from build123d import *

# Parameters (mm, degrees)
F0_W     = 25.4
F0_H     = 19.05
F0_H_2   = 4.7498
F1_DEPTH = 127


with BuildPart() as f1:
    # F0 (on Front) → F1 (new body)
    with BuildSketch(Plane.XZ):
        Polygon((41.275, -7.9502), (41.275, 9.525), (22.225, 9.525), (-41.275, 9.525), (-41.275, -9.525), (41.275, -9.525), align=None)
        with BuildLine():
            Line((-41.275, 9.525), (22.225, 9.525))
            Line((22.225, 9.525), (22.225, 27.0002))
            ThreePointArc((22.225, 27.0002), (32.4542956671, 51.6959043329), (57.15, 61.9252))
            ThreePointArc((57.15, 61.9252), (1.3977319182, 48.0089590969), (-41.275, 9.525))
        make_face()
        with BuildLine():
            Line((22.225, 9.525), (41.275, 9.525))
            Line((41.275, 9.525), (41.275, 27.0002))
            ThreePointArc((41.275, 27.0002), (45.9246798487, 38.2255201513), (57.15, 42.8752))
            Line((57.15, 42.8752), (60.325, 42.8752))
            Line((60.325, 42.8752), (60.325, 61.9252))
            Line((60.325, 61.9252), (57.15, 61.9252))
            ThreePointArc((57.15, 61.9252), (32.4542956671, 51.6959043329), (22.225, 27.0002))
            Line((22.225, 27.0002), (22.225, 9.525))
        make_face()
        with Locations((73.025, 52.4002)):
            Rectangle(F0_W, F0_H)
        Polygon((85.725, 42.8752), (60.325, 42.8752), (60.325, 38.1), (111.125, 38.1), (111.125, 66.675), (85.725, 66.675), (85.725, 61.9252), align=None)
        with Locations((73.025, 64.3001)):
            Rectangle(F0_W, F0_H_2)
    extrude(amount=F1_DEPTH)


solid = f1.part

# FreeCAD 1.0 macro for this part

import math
import FreeCAD as App
import Part
import Sketcher

V = App.Vector
Q = App.Units.Quantity

doc = App.newDocument("Part")
body = doc.addObject("PartDesign::Body", "Body")

sketch1 = body.newObject("Sketcher::SketchObject", "Sketch")
sketch1.AttachmentSupport = (doc.getObject("XZ_Plane"), [""])
sketch1.MapMode = "FlatFace"
sketch1.addGeometry(Part.ArcOfCircle(Part.Circle(V(57.1, -56.7, 0), V(0, 0, 1), 118.6), math.radians(90), math.radians(146)), False)
sketch1.addGeometry(Part.LineSegment(V(-41.3, 9.5, 0), V(-41.3, -9.5, 0)), False)
sketch1.addGeometry(Part.LineSegment(V(-41.3, -9.5, 0), V(41.3, -9.5, 0)), False)
sketch1.addGeometry(Part.LineSegment(V(41.3, -9.5, 0), V(41.3, 27, 0)), False)
sketch1.addGeometry(Part.ArcOfCircle(Part.Circle(V(57.1, 27, 0), V(0, 0, 1), 15.9), math.radians(90), math.radians(180)), False)
sketch1.addGeometry(Part.LineSegment(V(57.1, 42.9, 0), V(60.3, 42.9, 0)), False)
sketch1.addGeometry(Part.LineSegment(V(60.3, 42.9, 0), V(60.3, 38.1, 0)), False)
sketch1.addGeometry(Part.LineSegment(V(60.3, 38.1, 0), V(111.1, 38.1, 0)), False)
sketch1.addGeometry(Part.LineSegment(V(111.1, 38.1, 0), V(111.1, 66.7, 0)), False)
sketch1.addGeometry(Part.LineSegment(V(111.1, 66.7, 0), V(60.3, 66.7, 0)), False)
sketch1.addGeometry(Part.LineSegment(V(60.3, 66.7, 0), V(60.3, 61.9, 0)), False)
sketch1.addGeometry(Part.LineSegment(V(60.3, 61.9, 0), V(57.1, 61.9, 0)), False)
sketch1.addConstraint(Sketcher.Constraint("Coincident", 0, 2, 1, 1))
sketch1.addConstraint(Sketcher.Constraint("Coincident", 1, 2, 2, 1))
sketch1.addConstraint(Sketcher.Constraint("Coincident", 2, 2, 3, 1))
sketch1.addConstraint(Sketcher.Constraint("Tangent", 3, 2, 4, 2))
sketch1.addConstraint(Sketcher.Constraint("Tangent", 4, 1, 5, 1))
sketch1.addConstraint(Sketcher.Constraint("Coincident", 5, 2, 6, 1))
sketch1.addConstraint(Sketcher.Constraint("Coincident", 6, 2, 7, 1))
sketch1.addConstraint(Sketcher.Constraint("Coincident", 7, 2, 8, 1))
sketch1.addConstraint(Sketcher.Constraint("Coincident", 8, 2, 9, 1))
sketch1.addConstraint(Sketcher.Constraint("Coincident", 9, 2, 10, 1))
sketch1.addConstraint(Sketcher.Constraint("Coincident", 10, 2, 11, 1))
sketch1.addConstraint(Sketcher.Constraint("Tangent", 11, 2, 0, 1))
sketch1.addConstraint(Sketcher.Constraint("Vertical", 1))
sketch1.addConstraint(Sketcher.Constraint("Horizontal", 2))
sketch1.addConstraint(Sketcher.Constraint("Vertical", 3))
sketch1.addConstraint(Sketcher.Constraint("Horizontal", 5))
sketch1.addConstraint(Sketcher.Constraint("Vertical", 6))
sketch1.addConstraint(Sketcher.Constraint("Horizontal", 7))
sketch1.addConstraint(Sketcher.Constraint("Vertical", 8))
sketch1.addConstraint(Sketcher.Constraint("Horizontal", 9))
sketch1.addConstraint(Sketcher.Constraint("Vertical", 10))
sketch1.addConstraint(Sketcher.Constraint("Horizontal", 11))
sketch1.addConstraint(Sketcher.Constraint("Symmetric", 0, 2, 2, 2, -1, 1))
sketch1.addConstraint(Sketcher.Constraint("Vertical", 0, 3, 4, 3))
sketch1.addConstraint(Sketcher.Constraint("Vertical", 6, 2, 9, 2))
sketch1.addConstraint(Sketcher.Constraint("DistanceX", 7, 1, 7, 2, Q("2 in")))
sketch1.addConstraint(Sketcher.Constraint("Radius", 4, Q("0.625 in")))
sketch1.addConstraint(Sketcher.Constraint("DistanceX", 2, 1, 2, 2, Q("3.25 in")))
sketch1.addConstraint(Sketcher.Constraint("DistanceY", 1, 2, 1, 1, Q("0.75 in")))
sketch1.addConstraint(Sketcher.Constraint("DistanceY", -1, 1, 6, 2, Q("1.5 in")))
sketch1.addConstraint(Sketcher.Constraint("DistanceX", 5, 1, 5, 2, Q("0.125 in")))
sketch1.addConstraint(Sketcher.Constraint("DistanceY", 3, 1, 3, 2, Q("1.438 in")))
sketch1.addConstraint(Sketcher.Constraint("DistanceY", 8, 1, 8, 2, Q("1.125 in")))
sketch1.addConstraint(Sketcher.Constraint("DistanceY", 10, 2, 10, 1, Q("0.187 in")))
pad1 = body.newObject("PartDesign::Pad", "Pad")
pad1.Profile = sketch1
pad1.Length = Q("5 in")

doc.recompute()
